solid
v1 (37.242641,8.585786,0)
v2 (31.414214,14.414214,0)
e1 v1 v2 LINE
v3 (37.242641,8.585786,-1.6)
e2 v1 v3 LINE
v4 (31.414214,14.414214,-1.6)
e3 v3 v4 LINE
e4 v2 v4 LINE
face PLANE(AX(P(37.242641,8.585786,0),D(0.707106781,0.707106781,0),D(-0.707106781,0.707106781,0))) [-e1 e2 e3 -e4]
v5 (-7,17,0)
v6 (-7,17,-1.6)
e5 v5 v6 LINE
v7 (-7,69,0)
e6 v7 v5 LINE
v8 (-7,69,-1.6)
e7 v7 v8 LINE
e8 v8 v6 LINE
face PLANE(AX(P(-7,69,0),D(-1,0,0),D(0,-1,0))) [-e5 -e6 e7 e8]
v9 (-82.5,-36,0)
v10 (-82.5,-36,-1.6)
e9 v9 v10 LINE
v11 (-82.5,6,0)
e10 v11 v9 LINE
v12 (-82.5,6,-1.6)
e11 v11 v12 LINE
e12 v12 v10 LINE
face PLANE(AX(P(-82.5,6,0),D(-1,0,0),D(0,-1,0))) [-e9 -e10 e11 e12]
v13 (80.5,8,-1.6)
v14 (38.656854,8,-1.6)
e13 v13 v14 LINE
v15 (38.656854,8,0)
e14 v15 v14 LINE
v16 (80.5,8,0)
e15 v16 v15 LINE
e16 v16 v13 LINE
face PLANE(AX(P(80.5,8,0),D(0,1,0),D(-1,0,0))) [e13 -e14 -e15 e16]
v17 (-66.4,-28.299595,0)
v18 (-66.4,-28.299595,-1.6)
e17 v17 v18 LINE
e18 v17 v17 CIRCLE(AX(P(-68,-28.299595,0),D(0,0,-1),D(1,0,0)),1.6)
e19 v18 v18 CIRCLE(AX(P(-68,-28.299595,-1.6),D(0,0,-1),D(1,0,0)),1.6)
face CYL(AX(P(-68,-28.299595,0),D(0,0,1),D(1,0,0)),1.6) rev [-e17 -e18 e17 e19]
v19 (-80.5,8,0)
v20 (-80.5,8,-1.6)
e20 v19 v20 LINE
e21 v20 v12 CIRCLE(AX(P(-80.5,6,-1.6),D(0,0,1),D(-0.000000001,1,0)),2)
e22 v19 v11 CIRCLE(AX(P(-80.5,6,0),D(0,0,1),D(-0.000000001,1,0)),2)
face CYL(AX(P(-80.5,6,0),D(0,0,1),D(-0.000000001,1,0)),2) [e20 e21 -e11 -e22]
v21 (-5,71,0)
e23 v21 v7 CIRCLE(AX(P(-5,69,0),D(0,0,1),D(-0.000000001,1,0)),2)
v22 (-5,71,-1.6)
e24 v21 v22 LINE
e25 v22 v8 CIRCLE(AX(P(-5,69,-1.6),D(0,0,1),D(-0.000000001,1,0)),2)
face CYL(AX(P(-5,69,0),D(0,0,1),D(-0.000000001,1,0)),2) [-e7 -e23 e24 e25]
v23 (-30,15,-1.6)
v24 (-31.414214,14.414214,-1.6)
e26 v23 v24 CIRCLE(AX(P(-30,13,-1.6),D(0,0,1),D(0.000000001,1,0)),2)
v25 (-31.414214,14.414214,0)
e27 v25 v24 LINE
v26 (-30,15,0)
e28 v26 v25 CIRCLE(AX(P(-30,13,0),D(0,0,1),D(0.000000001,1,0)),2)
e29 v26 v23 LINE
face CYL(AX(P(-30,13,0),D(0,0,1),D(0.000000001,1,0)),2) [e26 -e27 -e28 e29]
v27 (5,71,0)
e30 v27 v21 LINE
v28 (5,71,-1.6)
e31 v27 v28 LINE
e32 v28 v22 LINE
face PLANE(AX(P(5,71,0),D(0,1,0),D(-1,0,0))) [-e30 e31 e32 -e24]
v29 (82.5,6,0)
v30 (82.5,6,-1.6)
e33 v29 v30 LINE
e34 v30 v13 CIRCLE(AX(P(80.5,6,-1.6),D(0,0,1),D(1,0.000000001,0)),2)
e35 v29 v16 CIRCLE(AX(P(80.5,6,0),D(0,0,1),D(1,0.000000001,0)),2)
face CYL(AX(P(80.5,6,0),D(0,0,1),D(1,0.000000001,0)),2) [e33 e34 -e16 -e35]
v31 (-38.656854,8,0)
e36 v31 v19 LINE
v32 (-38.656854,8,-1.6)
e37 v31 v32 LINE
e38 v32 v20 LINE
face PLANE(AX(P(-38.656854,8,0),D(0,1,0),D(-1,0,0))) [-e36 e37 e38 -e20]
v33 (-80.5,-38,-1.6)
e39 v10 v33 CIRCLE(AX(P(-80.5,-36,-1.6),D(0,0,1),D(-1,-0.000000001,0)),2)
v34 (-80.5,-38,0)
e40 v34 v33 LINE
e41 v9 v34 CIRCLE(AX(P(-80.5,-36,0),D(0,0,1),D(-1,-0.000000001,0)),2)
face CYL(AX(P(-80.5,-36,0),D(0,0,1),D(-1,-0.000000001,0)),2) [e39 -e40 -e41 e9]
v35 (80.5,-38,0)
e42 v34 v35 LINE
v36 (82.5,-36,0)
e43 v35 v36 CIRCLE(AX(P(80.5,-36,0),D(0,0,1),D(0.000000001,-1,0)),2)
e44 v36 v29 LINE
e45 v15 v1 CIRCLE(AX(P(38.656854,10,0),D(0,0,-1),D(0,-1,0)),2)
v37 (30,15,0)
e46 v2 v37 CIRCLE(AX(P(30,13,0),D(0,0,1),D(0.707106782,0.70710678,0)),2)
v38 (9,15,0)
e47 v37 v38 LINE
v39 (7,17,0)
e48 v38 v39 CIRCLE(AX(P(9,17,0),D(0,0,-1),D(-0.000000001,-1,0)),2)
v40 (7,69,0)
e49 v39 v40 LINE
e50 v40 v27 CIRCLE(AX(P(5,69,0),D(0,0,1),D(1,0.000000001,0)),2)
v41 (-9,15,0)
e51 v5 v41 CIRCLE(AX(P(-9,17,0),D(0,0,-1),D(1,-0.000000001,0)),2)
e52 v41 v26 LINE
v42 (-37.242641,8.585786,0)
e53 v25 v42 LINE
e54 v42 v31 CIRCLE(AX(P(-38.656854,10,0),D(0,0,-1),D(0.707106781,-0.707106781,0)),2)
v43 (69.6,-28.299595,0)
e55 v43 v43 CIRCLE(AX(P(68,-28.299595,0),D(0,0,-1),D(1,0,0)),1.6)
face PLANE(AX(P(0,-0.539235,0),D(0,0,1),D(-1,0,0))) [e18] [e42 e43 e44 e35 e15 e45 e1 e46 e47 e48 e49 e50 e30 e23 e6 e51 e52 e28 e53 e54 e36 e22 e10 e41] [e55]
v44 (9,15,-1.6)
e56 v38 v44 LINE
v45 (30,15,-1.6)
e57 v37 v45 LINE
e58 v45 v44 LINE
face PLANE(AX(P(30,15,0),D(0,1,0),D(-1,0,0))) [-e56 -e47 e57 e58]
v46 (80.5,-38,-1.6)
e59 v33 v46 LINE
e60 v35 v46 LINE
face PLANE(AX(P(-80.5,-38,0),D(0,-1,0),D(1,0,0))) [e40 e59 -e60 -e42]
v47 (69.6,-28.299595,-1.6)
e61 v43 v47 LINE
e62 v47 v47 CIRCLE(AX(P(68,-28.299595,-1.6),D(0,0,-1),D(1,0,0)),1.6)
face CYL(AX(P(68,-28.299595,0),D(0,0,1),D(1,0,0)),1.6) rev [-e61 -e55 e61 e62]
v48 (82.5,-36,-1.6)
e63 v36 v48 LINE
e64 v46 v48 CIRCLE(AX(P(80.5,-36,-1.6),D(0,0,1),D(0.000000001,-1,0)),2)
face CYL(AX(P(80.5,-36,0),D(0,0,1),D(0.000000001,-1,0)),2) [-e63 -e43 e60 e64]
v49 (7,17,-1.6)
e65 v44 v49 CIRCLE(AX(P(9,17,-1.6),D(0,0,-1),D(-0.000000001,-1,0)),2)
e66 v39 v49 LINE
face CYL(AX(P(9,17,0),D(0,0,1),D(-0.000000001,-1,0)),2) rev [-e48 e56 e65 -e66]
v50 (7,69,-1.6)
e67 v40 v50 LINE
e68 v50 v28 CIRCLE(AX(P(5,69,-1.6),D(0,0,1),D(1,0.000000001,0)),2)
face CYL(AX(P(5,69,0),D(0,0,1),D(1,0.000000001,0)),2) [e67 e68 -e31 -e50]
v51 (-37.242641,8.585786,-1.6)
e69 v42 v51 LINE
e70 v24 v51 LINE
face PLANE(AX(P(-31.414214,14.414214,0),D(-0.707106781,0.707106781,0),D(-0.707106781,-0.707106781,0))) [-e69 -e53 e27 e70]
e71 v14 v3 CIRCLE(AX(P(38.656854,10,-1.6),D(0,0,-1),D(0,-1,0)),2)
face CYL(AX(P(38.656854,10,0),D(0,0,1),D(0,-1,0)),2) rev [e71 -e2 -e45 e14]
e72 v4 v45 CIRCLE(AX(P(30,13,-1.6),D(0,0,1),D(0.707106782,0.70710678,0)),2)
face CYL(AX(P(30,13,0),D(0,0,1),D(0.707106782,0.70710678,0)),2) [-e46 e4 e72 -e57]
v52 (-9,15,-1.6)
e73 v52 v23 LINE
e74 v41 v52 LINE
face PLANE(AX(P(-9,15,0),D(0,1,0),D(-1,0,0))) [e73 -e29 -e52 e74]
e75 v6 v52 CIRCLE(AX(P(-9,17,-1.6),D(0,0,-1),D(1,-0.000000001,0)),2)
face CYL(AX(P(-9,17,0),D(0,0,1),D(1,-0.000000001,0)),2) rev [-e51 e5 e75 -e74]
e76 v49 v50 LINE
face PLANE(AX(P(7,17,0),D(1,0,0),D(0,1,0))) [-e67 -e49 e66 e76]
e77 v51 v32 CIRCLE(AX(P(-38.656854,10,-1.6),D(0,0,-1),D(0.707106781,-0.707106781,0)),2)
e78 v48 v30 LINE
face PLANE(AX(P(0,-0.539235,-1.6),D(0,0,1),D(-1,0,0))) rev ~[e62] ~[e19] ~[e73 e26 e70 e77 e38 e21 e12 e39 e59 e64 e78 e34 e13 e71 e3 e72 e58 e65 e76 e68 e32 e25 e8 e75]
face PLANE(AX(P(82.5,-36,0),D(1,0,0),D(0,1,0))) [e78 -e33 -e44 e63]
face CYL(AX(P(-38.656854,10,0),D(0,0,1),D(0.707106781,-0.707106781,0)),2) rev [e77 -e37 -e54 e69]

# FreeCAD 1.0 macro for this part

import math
import FreeCAD as App
import Part
import Sketcher
from FreeCAD import Vector

doc = App.newDocument("Part")
params = doc.addObject("Spreadsheet::Sheet", "Params")
for row, (alias, value) in enumerate([
    ("sketch1_radius", "2 mm"),
    ("sketch1_diameter", "3.2 mm"),
    ("sketch1_width", "161 mm"),
    ("sketch1_width2", "21 mm"),
    ("sketch1_width3", "10 mm"),
    ("pad1_length", "1.6 mm"),
], start=1):
    params.set(f"A{row}", alias)
    params.set(f"B{row}", "=" + value)
    params.setAlias(f"B{row}", alias)

body = doc.addObject("PartDesign::Body", "Body")

# Sketch on XY plane
sketch1 = doc.addObject("Sketcher::SketchObject", "Sketch")
body.addObject(sketch1)
sketch1.AttachmentSupport = (doc.XY_Plane, [""])
sketch1.MapMode = "FlatFace"
sketch1.addGeometry(Part.LineSegment(Vector(31.4, 14.4, 0), Vector(37.2, 8.6, 0)), False)
sketch1.addGeometry(Part.ArcOfCircle(Part.Circle(Vector(38.7, 10, 0), Vector(0, 0, 1), 2), math.radians(-135), math.radians(-90)), False)
sketch1.addGeometry(Part.LineSegment(Vector(38.7, 8, 0), Vector(80.5, 8, 0)), False)
sketch1.addGeometry(Part.ArcOfCircle(Part.Circle(Vector(80.5, 6, 0), Vector(0, 0, 1), 2), math.radians(0), math.radians(90)), False)
sketch1.addGeometry(Part.LineSegment(Vector(82.5, 6, 0), Vector(82.5, -36, 0)), False)
sketch1.addGeometry(Part.ArcOfCircle(Part.Circle(Vector(80.5, -36, 0), Vector(0, 0, 1), 2), math.radians(-90), math.radians(0)), False)
sketch1.addGeometry(Part.LineSegment(Vector(80.5, -38, 0), Vector(-80.5, -38, 0)), False)
sketch1.addGeometry(Part.ArcOfCircle(Part.Circle(Vector(-80.5, -36, 0), Vector(0, 0, 1), 2), math.radians(-180), math.radians(-90)), False)
sketch1.addGeometry(Part.LineSegment(Vector(-82.5, -36, 0), Vector(-82.5, 6, 0)), False)
sketch1.addGeometry(Part.ArcOfCircle(Part.Circle(Vector(-80.5, 6, 0), Vector(0, 0, 1), 2), math.radians(90), math.radians(180)), False)
sketch1.addGeometry(Part.LineSegment(Vector(-80.5, 8, 0), Vector(-38.7, 8, 0)), False)
sketch1.addGeometry(Part.ArcOfCircle(Part.Circle(Vector(-38.7, 10, 0), Vector(0, 0, 1), 2), math.radians(-90), math.radians(-45)), False)
sketch1.addGeometry(Part.LineSegment(Vector(-37.2, 8.6, 0), Vector(-31.4, 14.4, 0)), False)
sketch1.addGeometry(Part.ArcOfCircle(Part.Circle(Vector(-30, 13, 0), Vector(0, 0, 1), 2), math.radians(90), math.radians(135)), False)
sketch1.addGeometry(Part.LineSegment(Vector(-30, 15, 0), Vector(-9, 15, 0)), False)
sketch1.addGeometry(Part.ArcOfCircle(Part.Circle(Vector(-9, 17, 0), Vector(0, 0, 1), 2), math.radians(-90), math.radians(0)), False)
sketch1.addGeometry(Part.LineSegment(Vector(-7, 17, 0), Vector(-7, 69, 0)), False)
sketch1.addGeometry(Part.ArcOfCircle(Part.Circle(Vector(-5, 69, 0), Vector(0, 0, 1), 2), math.radians(90), math.radians(180)), False)
sketch1.addGeometry(Part.LineSegment(Vector(-5, 71, 0), Vector(5, 71, 0)), False)
sketch1.addGeometry(Part.ArcOfCircle(Part.Circle(Vector(5, 69, 0), Vector(0, 0, 1), 2), math.radians(0), math.radians(90)), False)
sketch1.addGeometry(Part.LineSegment(Vector(7, 69, 0), Vector(7, 17, 0)), False)
sketch1.addGeometry(Part.ArcOfCircle(Part.Circle(Vector(9, 17, 0), Vector(0, 0, 1), 2), math.radians(-180), math.radians(-90)), False)
sketch1.addGeometry(Part.LineSegment(Vector(9, 15, 0), Vector(30, 15, 0)), False)
sketch1.addGeometry(Part.ArcOfCircle(Part.Circle(Vector(30, 13, 0), Vector(0, 0, 1), 2), math.radians(45), math.radians(90)), False)
sketch1.addGeometry(Part.Circle(Vector(68, -28.3, 0), Vector(0, 0, 1), 1.6), False)
sketch1.addGeometry(Part.Circle(Vector(-68, -28.3, 0), Vector(0, 0, 1), 1.6), False)
sketch1.addConstraint(Sketcher.Constraint("Tangent", 0, 2, 1, 1))
sketch1.addConstraint(Sketcher.Constraint("Tangent", 1, 2, 2, 1))
sketch1.addConstraint(Sketcher.Constraint("Tangent", 2, 2, 3, 2))
sketch1.addConstraint(Sketcher.Constraint("Tangent", 3, 1, 4, 1))
sketch1.addConstraint(Sketcher.Constraint("Tangent", 4, 2, 5, 2))
sketch1.addConstraint(Sketcher.Constraint("Tangent", 5, 1, 6, 1))
sketch1.addConstraint(Sketcher.Constraint("Tangent", 6, 2, 7, 2))
sketch1.addConstraint(Sketcher.Constraint("Tangent", 7, 1, 8, 1))
sketch1.addConstraint(Sketcher.Constraint("Tangent", 8, 2, 9, 2))
sketch1.addConstraint(Sketcher.Constraint("Tangent", 9, 1, 10, 1))
sketch1.addConstraint(Sketcher.Constraint("Tangent", 10, 2, 11, 1))
sketch1.addConstraint(Sketcher.Constraint("Tangent", 11, 2, 12, 1))
sketch1.addConstraint(Sketcher.Constraint("Tangent", 12, 2, 13, 2))
sketch1.addConstraint(Sketcher.Constraint("Tangent", 13, 1, 14, 1))
sketch1.addConstraint(Sketcher.Constraint("Tangent", 14, 2, 15, 1))
sketch1.addConstraint(Sketcher.Constraint("Tangent", 15, 2, 16, 1))
sketch1.addConstraint(Sketcher.Constraint("Tangent", 16, 2, 17, 2))
sketch1.addConstraint(Sketcher.Constraint("Tangent", 17, 1, 18, 1))
sketch1.addConstraint(Sketcher.Constraint("Tangent", 18, 2, 19, 2))
sketch1.addConstraint(Sketcher.Constraint("Tangent", 19, 1, 20, 1))
sketch1.addConstraint(Sketcher.Constraint("Tangent", 20, 2, 21, 1))
sketch1.addConstraint(Sketcher.Constraint("Tangent", 21, 2, 22, 1))
sketch1.addConstraint(Sketcher.Constraint("Tangent", 22, 2, 23, 2))
sketch1.addConstraint(Sketcher.Constraint("Tangent", 23, 1, 0, 1))
sketch1.addConstraint(Sketcher.Constraint("Horizontal", 2))
sketch1.addConstraint(Sketcher.Constraint("Vertical", 4))
sketch1.addConstraint(Sketcher.Constraint("Horizontal", 6))
sketch1.addConstraint(Sketcher.Constraint("Vertical", 8))
sketch1.addConstraint(Sketcher.Constraint("Horizontal", 10))
sketch1.addConstraint(Sketcher.Constraint("Horizontal", 14))
sketch1.addConstraint(Sketcher.Constraint("Vertical", 16))
sketch1.addConstraint(Sketcher.Constraint("Horizontal", 18))
sketch1.addConstraint(Sketcher.Constraint("Vertical", 20))
sketch1.addConstraint(Sketcher.Constraint("Horizontal", 22))
sketch1.addConstraint(Sketcher.Constraint("Equal", 1, 3))
sketch1.addConstraint(Sketcher.Constraint("Equal", 3, 5))
sketch1.addConstraint(Sketcher.Constraint("Equal", 5, 7))
sketch1.addConstraint(Sketcher.Constraint("Equal", 7, 9))
sketch1.addConstraint(Sketcher.Constraint("Equal", 9, 11))
sketch1.addConstraint(Sketcher.Constraint("Equal", 11, 13))
sketch1.addConstraint(Sketcher.Constraint("Equal", 13, 15))
sketch1.addConstraint(Sketcher.Constraint("Equal", 15, 17))
sketch1.addConstraint(Sketcher.Constraint("Equal", 17, 19))
sketch1.addConstraint(Sketcher.Constraint("Equal", 19, 21))
sketch1.addConstraint(Sketcher.Constraint("Equal", 21, 23))
sketch1.addConstraint(Sketcher.Constraint("Equal", 24, 25))
sketch1.addConstraint(Sketcher.Constraint("Symmetric", 3, 3, 9, 3, -2))
sketch1.addConstraint(Sketcher.Constraint("Symmetric", 15, 3, 21, 3, -2))
sketch1.addConstraint(Sketcher.Constraint("Symmetric", 24, 3, 25, 3, -2))
sketch1.addConstraint(Sketcher.Constraint("Symmetric", 0, 2, 11, 2, -2))
sketch1.addConstraint(Sketcher.Constraint("Perpendicular", 0, 12))
sketch1.addConstraint(Sketcher.Constraint("Radius", 1, 2.0))
sketch1.addConstraint(Sketcher.Constraint("Diameter", 24, 3.2))
sketch1.addConstraint(Sketcher.Constraint("DistanceX", 6, 2, 6, 1, 161.0))
sketch1.addConstraint(Sketcher.Constraint("DistanceX", 14, 1, 14, 2, 21.0))
sketch1.addConstraint(Sketcher.Constraint("DistanceX", 18, 1, 18, 2, 10.0))
sketch1.addConstraint(Sketcher.Constraint("DistanceY", 4, 2, 4, 1, 42.0))
sketch1.addConstraint(Sketcher.Constraint("DistanceY", 16, 1, 16, 2, 52.0))
sketch1.addConstraint(Sketcher.Constraint("DistanceY", -1, 1, 1, 3, 10.0))
sketch1.addConstraint(Sketcher.Constraint("DistanceY", -1, 1, 13, 3, 13.0))
sketch1.addConstraint(Sketcher.Constraint("DistanceX", -1, 1, 24, 3, 68.0))
sketch1.addConstraint(Sketcher.Constraint("DistanceY", 24, 3, -1, 1, 28.299595))
sketch1.setExpression("Constraints[51]", "Params.sketch1_radius")
sketch1.setExpression("Constraints[52]", "Params.sketch1_diameter")
sketch1.setExpression("Constraints[53]", "Params.sketch1_width")
sketch1.setExpression("Constraints[54]", "Params.sketch1_width2")
sketch1.setExpression("Constraints[55]", "Params.sketch1_width3")
pad1 = doc.addObject("PartDesign::Pad", "Pad")
body.addObject(pad1)
pad1.Profile = sketch1
pad1.setExpression("Length", "Params.pad1_length")
pad1.Reversed = True

doc.recompute()
